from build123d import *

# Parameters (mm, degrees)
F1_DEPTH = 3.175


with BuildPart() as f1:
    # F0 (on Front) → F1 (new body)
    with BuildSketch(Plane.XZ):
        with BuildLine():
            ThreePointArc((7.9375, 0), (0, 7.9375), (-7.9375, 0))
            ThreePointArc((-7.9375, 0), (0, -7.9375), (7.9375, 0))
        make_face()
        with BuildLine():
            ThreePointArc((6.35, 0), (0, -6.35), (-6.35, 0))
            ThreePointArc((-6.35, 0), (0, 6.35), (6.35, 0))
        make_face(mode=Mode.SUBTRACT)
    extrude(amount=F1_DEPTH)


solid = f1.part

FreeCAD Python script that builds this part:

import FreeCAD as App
import Part
import Sketcher
Q = App.Units.Quantity

doc = App.newDocument("Part")
body = doc.addObject("PartDesign::Body", "Body")

# Sketch on XZ plane
sketch1 = doc.addObject("Sketcher::SketchObject", "Sketch")
body.addObject(sketch1)
sketch1.AttachmentSupport = (doc.XZ_Plane, [""])
sketch1.MapMode = "FlatFace"
sketch1.addGeometry(Part.Circle(App.Vector(0, 0, 0), App.Vector(0, 0, 1), 8), False)
sketch1.addGeometry(Part.Circle(App.Vector(0, 0, 0), App.Vector(0, 0, 1), 6), False)
sketch1.addConstraint(Sketcher.Constraint("Coincident", 0, 3, -1, 1))
sketch1.addConstraint(Sketcher.Constraint("Coincident", 1, 3, -1, 1))
sketch1.addConstraint(Sketcher.Constraint("Diameter", 1, Q("0.5 in")))
sketch1.addConstraint(Sketcher.Constraint("Diameter", 0, Q("0.625 in")))
pad1 = doc.addObject("PartDesign::Pad", "Pad")
body.addObject(pad1)
pad1.Profile = sketch1
pad1.Length = Q("0.125 in")

doc.recompute()
